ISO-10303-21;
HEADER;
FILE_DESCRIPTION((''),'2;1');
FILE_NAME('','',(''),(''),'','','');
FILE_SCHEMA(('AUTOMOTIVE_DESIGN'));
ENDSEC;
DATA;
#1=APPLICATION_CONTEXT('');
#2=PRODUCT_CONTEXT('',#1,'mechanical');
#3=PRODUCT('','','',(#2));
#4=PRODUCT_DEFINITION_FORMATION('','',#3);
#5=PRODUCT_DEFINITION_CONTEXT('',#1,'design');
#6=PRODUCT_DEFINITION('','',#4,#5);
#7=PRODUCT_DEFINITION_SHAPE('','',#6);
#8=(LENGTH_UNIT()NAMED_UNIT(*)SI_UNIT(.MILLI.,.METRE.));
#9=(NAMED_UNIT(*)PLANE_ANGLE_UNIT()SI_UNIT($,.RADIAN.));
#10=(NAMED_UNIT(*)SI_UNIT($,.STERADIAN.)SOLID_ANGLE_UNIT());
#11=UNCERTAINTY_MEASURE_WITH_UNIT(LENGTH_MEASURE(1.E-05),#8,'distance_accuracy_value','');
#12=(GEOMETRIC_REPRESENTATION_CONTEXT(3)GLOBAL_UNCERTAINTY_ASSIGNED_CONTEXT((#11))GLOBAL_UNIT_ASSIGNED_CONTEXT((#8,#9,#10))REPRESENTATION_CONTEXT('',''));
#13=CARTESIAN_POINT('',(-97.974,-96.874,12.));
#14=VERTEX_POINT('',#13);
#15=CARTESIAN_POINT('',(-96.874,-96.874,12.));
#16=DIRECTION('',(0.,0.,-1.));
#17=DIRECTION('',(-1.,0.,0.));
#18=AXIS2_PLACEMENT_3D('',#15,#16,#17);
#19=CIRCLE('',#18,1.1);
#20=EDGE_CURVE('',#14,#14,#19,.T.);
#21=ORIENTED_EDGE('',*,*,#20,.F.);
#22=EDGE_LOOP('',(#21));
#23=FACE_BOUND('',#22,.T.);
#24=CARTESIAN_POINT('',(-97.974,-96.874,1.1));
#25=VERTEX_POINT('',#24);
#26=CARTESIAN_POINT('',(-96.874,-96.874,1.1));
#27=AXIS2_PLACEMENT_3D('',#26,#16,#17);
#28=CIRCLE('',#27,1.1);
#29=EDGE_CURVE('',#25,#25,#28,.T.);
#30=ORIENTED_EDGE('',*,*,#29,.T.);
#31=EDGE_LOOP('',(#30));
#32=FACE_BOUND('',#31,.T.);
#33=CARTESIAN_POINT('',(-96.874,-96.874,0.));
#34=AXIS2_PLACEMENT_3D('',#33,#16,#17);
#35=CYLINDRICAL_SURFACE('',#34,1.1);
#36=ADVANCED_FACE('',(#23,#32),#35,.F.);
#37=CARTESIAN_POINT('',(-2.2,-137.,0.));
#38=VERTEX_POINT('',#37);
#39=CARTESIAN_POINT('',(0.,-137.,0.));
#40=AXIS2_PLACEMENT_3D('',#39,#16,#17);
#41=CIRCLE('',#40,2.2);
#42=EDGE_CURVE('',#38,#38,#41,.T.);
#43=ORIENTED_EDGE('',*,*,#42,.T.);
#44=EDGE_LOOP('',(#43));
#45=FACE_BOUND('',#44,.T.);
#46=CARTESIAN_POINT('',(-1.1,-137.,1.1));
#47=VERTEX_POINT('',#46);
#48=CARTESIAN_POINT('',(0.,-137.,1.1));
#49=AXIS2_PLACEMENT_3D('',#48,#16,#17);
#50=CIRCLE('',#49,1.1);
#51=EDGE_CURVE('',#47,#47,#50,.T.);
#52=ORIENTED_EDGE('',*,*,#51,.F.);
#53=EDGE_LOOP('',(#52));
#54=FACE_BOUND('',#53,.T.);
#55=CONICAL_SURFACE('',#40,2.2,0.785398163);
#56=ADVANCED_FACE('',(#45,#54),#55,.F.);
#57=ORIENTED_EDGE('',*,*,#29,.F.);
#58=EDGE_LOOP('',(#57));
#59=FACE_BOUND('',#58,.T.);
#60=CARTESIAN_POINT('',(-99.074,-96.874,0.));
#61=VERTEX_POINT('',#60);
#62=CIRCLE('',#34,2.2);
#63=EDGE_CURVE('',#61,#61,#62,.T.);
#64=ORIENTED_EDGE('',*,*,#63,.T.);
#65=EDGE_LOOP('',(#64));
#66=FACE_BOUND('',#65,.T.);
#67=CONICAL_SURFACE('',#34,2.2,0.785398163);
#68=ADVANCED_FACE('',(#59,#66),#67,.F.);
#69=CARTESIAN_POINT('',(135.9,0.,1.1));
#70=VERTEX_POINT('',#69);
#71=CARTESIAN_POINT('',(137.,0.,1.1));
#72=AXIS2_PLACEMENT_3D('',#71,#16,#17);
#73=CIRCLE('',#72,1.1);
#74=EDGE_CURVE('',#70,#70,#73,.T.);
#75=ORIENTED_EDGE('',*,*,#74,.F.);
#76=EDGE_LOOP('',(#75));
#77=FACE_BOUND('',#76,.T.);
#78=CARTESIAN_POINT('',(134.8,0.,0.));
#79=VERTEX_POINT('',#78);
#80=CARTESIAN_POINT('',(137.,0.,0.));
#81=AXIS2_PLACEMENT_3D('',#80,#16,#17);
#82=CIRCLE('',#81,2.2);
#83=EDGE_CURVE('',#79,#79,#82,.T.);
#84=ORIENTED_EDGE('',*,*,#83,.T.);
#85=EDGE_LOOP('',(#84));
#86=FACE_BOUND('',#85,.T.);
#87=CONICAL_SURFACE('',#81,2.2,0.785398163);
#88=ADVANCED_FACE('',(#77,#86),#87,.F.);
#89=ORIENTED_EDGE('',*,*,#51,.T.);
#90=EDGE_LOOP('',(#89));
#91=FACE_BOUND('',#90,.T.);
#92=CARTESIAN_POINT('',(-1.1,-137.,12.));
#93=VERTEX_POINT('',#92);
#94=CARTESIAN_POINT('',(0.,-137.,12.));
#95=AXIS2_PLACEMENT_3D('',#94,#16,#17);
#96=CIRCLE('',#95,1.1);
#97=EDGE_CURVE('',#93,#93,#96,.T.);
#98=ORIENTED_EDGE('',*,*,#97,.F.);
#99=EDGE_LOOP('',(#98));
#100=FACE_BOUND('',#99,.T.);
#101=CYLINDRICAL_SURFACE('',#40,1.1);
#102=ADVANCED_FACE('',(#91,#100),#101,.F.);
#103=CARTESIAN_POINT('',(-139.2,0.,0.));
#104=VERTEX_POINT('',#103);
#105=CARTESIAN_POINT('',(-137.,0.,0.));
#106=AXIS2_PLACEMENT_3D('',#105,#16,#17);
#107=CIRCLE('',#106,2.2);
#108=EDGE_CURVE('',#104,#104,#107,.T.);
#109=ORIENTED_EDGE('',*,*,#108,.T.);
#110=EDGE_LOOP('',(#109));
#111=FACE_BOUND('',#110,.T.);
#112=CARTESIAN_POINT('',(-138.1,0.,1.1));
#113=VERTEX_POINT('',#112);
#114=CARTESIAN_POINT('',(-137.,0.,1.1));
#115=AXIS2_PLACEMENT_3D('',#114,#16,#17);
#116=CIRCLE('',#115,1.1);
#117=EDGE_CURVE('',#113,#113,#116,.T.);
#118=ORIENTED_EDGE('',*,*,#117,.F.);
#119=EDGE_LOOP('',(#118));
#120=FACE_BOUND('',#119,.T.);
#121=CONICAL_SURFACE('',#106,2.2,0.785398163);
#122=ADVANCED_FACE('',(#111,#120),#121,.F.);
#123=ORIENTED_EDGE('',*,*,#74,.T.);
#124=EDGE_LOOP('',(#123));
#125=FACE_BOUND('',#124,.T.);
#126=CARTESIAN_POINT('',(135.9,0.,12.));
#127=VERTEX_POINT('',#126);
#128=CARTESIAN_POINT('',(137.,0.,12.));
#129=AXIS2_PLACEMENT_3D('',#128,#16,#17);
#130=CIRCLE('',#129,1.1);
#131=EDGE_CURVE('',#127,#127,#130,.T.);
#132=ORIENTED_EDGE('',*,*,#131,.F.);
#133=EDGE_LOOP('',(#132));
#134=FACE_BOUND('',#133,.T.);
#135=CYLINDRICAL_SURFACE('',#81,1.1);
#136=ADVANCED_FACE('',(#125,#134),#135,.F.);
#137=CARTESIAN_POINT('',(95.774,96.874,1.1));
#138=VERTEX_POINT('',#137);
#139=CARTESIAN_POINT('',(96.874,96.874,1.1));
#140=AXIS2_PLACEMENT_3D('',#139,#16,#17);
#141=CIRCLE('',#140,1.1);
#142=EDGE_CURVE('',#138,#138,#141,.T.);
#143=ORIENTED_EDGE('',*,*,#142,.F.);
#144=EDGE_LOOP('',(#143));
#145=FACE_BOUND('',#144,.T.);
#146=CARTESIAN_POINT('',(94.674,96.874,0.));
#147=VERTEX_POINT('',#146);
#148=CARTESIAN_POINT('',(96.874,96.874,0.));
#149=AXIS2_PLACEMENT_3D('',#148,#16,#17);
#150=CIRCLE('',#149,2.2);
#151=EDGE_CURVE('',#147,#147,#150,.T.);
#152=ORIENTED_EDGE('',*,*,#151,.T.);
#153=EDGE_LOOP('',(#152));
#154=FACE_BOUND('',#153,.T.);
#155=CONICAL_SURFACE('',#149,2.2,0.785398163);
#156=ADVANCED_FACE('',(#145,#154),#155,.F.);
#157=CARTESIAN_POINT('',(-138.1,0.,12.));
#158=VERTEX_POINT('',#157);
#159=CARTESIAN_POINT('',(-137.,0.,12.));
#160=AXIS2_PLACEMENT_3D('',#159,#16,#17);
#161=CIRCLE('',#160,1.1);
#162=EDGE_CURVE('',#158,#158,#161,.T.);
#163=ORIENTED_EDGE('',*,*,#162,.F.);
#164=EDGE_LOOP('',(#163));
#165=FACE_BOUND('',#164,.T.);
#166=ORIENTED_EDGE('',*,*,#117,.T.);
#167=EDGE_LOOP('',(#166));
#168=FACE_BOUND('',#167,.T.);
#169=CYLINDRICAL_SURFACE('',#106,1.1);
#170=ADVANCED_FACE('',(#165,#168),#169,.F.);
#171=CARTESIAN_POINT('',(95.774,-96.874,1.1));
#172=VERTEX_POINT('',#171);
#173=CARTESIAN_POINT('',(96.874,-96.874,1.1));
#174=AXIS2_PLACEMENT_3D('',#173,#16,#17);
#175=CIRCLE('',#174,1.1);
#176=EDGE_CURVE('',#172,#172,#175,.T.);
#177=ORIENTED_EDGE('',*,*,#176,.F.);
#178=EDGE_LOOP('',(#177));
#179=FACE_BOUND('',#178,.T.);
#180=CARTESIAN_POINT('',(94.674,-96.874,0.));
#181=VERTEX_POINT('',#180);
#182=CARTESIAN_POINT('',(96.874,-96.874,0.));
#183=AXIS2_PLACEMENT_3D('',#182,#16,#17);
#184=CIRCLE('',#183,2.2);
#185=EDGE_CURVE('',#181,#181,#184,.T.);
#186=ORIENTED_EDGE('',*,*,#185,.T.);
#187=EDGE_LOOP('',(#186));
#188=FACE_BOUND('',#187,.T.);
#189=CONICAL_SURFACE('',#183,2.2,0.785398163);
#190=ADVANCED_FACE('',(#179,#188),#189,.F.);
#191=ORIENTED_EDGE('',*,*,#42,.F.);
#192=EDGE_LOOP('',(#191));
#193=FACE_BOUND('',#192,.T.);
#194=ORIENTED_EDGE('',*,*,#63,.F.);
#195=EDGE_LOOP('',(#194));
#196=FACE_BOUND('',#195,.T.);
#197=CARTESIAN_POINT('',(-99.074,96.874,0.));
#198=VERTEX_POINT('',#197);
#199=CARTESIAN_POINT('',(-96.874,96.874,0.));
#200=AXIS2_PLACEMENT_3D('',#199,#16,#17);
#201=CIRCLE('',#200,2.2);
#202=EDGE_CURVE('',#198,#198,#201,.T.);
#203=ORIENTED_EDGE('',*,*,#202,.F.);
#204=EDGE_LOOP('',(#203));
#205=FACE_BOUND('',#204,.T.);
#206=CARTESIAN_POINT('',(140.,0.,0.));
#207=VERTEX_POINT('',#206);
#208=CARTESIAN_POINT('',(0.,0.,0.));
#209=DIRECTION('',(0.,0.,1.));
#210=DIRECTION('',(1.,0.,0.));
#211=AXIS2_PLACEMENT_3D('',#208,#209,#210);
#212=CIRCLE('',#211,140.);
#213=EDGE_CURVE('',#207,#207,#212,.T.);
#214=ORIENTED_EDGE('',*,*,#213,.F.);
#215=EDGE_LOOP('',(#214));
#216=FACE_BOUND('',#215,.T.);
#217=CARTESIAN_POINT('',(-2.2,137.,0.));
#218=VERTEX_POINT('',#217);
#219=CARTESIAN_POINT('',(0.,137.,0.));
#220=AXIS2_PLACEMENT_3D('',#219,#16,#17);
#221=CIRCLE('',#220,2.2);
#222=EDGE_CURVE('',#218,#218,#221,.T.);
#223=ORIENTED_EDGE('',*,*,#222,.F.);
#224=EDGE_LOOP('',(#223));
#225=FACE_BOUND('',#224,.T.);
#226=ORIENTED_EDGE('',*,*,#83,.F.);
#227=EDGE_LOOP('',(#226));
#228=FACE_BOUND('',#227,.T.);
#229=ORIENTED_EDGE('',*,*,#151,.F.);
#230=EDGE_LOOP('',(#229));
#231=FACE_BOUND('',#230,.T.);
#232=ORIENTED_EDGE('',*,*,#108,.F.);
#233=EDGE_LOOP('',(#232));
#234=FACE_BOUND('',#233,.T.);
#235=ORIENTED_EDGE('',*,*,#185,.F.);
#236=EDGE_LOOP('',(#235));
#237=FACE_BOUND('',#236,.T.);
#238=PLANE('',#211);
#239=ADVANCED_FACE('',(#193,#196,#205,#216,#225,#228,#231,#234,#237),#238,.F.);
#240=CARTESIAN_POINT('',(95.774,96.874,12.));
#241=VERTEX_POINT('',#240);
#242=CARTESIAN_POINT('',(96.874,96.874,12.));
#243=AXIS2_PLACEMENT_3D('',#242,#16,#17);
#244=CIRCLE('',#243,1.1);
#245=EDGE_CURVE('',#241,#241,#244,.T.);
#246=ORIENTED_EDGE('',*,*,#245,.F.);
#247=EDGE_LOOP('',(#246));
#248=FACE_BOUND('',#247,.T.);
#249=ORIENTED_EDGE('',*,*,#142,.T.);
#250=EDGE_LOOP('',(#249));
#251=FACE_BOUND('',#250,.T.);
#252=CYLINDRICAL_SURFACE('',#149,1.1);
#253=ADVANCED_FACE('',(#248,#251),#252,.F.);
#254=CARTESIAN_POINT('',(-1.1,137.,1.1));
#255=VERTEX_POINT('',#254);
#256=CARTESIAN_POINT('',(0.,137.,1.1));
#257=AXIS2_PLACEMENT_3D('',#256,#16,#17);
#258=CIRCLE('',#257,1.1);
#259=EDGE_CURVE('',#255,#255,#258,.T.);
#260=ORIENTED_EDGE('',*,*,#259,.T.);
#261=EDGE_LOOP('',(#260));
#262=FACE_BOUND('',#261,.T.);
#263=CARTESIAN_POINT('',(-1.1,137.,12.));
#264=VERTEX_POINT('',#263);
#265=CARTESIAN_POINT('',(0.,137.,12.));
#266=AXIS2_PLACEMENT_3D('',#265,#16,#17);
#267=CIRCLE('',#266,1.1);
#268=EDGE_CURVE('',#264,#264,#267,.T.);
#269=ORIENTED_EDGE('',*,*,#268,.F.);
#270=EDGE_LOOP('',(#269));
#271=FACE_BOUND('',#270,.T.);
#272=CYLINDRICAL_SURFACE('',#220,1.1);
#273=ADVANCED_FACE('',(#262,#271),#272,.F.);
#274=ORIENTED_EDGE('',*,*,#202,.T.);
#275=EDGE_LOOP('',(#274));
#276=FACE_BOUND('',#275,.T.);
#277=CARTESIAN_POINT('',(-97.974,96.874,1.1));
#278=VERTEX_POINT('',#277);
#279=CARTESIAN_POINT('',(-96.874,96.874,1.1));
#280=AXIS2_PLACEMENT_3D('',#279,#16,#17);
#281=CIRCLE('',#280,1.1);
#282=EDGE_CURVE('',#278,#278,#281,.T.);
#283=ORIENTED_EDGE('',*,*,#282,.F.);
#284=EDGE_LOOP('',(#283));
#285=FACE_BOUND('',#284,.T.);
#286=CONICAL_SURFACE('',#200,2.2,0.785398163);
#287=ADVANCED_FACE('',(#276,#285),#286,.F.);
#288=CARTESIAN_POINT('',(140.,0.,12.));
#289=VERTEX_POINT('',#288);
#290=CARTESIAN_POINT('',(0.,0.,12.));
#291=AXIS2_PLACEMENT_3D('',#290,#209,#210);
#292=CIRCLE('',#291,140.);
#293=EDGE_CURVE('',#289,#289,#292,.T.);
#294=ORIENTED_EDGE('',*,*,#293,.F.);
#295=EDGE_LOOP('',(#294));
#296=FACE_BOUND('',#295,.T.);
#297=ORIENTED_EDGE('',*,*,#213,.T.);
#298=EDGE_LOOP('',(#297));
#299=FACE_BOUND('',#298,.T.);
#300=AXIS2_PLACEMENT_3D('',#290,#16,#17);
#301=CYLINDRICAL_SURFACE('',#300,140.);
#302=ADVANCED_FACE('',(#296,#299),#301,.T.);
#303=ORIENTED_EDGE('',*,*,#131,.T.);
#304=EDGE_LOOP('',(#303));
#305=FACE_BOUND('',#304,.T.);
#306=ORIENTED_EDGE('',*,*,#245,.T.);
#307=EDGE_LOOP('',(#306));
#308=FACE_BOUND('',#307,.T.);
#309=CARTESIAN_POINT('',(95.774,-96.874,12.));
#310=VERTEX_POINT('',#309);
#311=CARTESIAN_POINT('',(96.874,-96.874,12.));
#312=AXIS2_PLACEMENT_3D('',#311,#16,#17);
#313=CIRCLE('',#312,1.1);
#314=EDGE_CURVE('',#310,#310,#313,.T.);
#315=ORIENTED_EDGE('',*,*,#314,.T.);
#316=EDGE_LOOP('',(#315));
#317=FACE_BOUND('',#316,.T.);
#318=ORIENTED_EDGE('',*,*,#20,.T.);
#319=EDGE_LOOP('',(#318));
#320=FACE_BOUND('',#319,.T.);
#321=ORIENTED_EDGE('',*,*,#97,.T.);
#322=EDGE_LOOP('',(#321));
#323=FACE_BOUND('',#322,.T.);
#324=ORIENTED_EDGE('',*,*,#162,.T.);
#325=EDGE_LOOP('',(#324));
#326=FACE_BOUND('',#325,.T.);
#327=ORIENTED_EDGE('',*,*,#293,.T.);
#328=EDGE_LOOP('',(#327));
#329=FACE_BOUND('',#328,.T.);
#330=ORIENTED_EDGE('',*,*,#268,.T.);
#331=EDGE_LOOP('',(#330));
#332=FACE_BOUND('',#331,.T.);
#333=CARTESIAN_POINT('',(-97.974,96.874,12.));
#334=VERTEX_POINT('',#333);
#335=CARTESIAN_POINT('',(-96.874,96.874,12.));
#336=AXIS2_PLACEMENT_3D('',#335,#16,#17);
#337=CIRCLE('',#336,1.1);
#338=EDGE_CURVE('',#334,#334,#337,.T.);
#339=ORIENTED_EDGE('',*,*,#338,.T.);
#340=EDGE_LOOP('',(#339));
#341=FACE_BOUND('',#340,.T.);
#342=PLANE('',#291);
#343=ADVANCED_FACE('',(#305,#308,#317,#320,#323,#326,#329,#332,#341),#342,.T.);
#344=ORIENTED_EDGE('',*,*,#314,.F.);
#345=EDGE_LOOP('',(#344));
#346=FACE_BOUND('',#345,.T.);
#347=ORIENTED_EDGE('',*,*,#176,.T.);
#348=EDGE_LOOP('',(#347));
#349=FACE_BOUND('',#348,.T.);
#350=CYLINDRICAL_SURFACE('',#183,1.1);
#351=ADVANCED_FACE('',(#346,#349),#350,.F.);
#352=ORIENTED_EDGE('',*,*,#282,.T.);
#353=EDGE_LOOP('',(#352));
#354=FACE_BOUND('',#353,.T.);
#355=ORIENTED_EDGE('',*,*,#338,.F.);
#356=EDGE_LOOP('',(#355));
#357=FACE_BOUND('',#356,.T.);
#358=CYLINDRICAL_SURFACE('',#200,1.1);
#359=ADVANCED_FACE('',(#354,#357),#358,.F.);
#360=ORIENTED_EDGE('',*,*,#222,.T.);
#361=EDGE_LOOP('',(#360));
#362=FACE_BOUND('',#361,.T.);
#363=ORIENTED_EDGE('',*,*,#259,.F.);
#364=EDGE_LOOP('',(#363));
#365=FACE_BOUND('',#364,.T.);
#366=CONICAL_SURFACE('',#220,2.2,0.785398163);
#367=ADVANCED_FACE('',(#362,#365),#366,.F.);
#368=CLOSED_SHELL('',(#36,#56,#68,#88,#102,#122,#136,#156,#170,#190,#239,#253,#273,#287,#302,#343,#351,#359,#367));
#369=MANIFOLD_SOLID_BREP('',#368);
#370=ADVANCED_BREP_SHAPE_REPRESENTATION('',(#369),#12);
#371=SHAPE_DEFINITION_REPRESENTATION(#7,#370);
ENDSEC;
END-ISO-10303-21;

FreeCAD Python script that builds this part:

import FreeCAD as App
import Part
import Sketcher

V = App.Vector
Q = App.Units.Quantity

doc = App.newDocument("Part")
body = doc.addObject("PartDesign::Body", "Body")

# Sketch on XY plane
sketch1 = doc.addObject("Sketcher::SketchObject", "Sketch")
body.addObject(sketch1)
sketch1.AttachmentSupport = (doc.XY_Plane, [""])
sketch1.MapMode = "FlatFace"
sketch1.addGeometry(Part.Circle(V(0, 0, 0), V(0, 0, 1), 140), False)
sketch1.addConstraint([
    Sketcher.Constraint("Coincident", 0, 3, -1, 1),
    Sketcher.Constraint("Diameter", 0, Q("280 mm")),
])
pad1 = doc.addObject("PartDesign::Pad", "Pad")
body.addObject(pad1)
pad1.Profile = sketch1
pad1.Length = 12

# Sketch on XY plane
sketch2 = doc.addObject("Sketcher::SketchObject", "Sketch001")
body.addObject(sketch2)
sketch2.AttachmentSupport = (doc.XY_Plane, [""])
sketch2.MapMode = "FlatFace"
sketch2.addGeometry([
    Part.Circle(V(0, 137, 0), V(0, 0, 1), 1.1),  # 0
    Part.Circle(V(-137, 0, 0), V(0, 0, 1), 1.1),  # 1
    Part.Circle(V(0, -137, 0), V(0, 0, 1), 1.1),  # 2
    Part.Circle(V(137, 0, 0), V(0, 0, 1), 1.1),  # 3
    Part.Circle(V(96.874, 96.874, 0), V(0, 0, 1), 1.1),  # 4
    Part.Circle(V(-96.874, 96.874, 0), V(0, 0, 1), 1.1),  # 5
    Part.Circle(V(-96.874, -96.874, 0), V(0, 0, 1), 1.1),  # 6
    Part.Circle(V(96.874, -96.874, 0), V(0, 0, 1), 1.1),  # 7
], False)
sketch2.addConstraint([
    Sketcher.Constraint("Equal", 0, 1),
    Sketcher.Constraint("Equal", 1, 2),
    Sketcher.Constraint("Equal", 2, 3),
    Sketcher.Constraint("Equal", 3, 4),
    Sketcher.Constraint("Equal", 4, 5),
    Sketcher.Constraint("Equal", 5, 6),
    Sketcher.Constraint("Equal", 6, 7),
    Sketcher.Constraint("Symmetric", 0, 3, 2, 3, -1, 1),
    Sketcher.Constraint("Symmetric", 1, 3, 3, 3, -1, 1),
    Sketcher.Constraint("Symmetric", 4, 3, 6, 3, -1, 1),
    Sketcher.Constraint("Symmetric", 5, 3, 7, 3, -1, 1),
    Sketcher.Constraint("Symmetric", 4, 3, 5, 3, -2),
    Sketcher.Constraint("PointOnObject", 0, 3, -2),
    Sketcher.Constraint("PointOnObject", 1, 3, -1),
    Sketcher.Constraint("Diameter", 0, Q("2.2 mm")),
    Sketcher.Constraint("DistanceY", -1, 1, 0, 3, Q("137 mm")),
    Sketcher.Constraint("DistanceX", 1, 3, -1, 1, Q("137 mm")),
    Sketcher.Constraint("DistanceX", -1, 1, 4, 3, Q("96.874 mm")),
    Sketcher.Constraint("DistanceY", -1, 1, 4, 3, Q("96.874 mm")),
])
doc.recompute()
hole = doc.addObject("PartDesign::Hole", "Hole")
body.addObject(hole)
hole.Profile = sketch2
hole.ThreadType = "None"
hole.Diameter = 2.2
hole.DepthType = "ThroughAll"
hole.HoleCutType = "Countersink"
hole.HoleCutDiameter = 4.4
hole.HoleCutCountersinkAngle = 90
hole.Reversed = True

doc.recompute()
